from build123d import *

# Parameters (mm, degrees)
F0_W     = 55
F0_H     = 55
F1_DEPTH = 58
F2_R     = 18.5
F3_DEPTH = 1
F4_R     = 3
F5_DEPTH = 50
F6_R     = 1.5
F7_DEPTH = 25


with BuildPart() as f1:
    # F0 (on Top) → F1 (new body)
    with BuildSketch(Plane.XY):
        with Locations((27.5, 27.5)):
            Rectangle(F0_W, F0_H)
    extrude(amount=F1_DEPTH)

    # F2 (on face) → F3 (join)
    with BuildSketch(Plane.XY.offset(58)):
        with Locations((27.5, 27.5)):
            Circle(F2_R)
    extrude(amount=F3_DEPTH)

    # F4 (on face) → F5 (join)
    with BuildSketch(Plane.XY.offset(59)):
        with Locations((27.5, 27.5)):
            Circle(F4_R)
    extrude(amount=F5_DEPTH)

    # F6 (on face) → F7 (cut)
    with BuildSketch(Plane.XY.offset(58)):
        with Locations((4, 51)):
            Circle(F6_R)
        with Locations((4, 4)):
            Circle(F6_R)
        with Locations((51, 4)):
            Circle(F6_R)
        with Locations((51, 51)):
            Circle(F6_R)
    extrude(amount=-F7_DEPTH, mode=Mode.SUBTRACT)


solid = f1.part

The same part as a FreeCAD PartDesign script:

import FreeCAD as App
import Part
import Sketcher

V = App.Vector

doc = App.newDocument("Part")
body = doc.addObject("PartDesign::Body", "Body")

# Sketch on XY plane
sketch1 = body.newObject("Sketcher::SketchObject", "Sketch")
sketch1.AttachmentSupport = (doc.getObject("XY_Plane"), [""])
sketch1.MapMode = "FlatFace"
sketch1.addGeometry(Part.LineSegment(V(0, 55, 0), V(0, 0, 0)), False)
sketch1.addGeometry(Part.LineSegment(V(0, 0, 0), V(55, 0, 0)), False)
sketch1.addGeometry(Part.LineSegment(V(55, 0, 0), V(55, 55, 0)), False)
sketch1.addGeometry(Part.LineSegment(V(55, 55, 0), V(0, 55, 0)), False)
sketch1.addConstraint(Sketcher.Constraint("Coincident", 0, 2, 1, 1))
sketch1.addConstraint(Sketcher.Constraint("Coincident", 1, 2, 2, 1))
sketch1.addConstraint(Sketcher.Constraint("Coincident", 2, 2, 3, 1))
sketch1.addConstraint(Sketcher.Constraint("Coincident", 3, 2, 0, 1))
sketch1.addConstraint(Sketcher.Constraint("Vertical", 0))
sketch1.addConstraint(Sketcher.Constraint("Horizontal", 1))
sketch1.addConstraint(Sketcher.Constraint("Vertical", 2))
sketch1.addConstraint(Sketcher.Constraint("Horizontal", 3))
sketch1.addConstraint(Sketcher.Constraint("Coincident", 0, 2, -1, 1))
sketch1.addConstraint(Sketcher.Constraint("Equal", 3, 0))
sketch1.addConstraint(Sketcher.Constraint("DistanceX", 1, 1, 1, 2, 55.0))
pad1 = body.newObject("PartDesign::Pad", "Pad")
pad1.Profile = sketch1
pad1.Length = 58

# Sketch on XY plane
sketch2 = body.newObject("Sketcher::SketchObject", "Sketch001")
sketch2.AttachmentSupport = (doc.getObject("XY_Plane"), [""])
sketch2.MapMode = "FlatFace"
sketch2.AttachmentOffset = App.Placement(V(0, 0, 58), App.Rotation())
sketch2.addGeometry(Part.Circle(V(28, 28, 0), V(0, 0, 1), 18), False)
sketch2.addConstraint(Sketcher.Constraint("Diameter", 0, 37.0))
sketch2.addConstraint(Sketcher.Constraint("DistanceX", -1, 1, 0, 3, 27.5))
sketch2.addConstraint(Sketcher.Constraint("DistanceY", -1, 1, 0, 3, 27.5))
pad2 = body.newObject("PartDesign::Pad", "Pad001")
pad2.Profile = sketch2
pad2.Length = 1

# Sketch on XY plane
sketch3 = body.newObject("Sketcher::SketchObject", "Sketch002")
sketch3.AttachmentSupport = (doc.getObject("XY_Plane"), [""])
sketch3.MapMode = "FlatFace"
sketch3.AttachmentOffset = App.Placement(V(0, 0, 59), App.Rotation())
sketch3.addGeometry(Part.Circle(V(27.5, 27.5, 0), V(0, 0, 1), 3), False)
sketch3.addConstraint(Sketcher.Constraint("Diameter", 0, 6.0))
sketch3.addConstraint(Sketcher.Constraint("DistanceX", -1, 1, 0, 3, 27.5))
sketch3.addConstraint(Sketcher.Constraint("DistanceY", -1, 1, 0, 3, 27.5))
pad3 = body.newObject("PartDesign::Pad", "Pad002")
pad3.Profile = sketch3
pad3.Length = 50

# Sketch on XY plane
sketch4 = body.newObject("Sketcher::SketchObject", "Sketch003")
sketch4.AttachmentSupport = (doc.getObject("XY_Plane"), [""])
sketch4.MapMode = "FlatFace"
sketch4.AttachmentOffset = App.Placement(V(0, 0, 58), App.Rotation())
sketch4.addGeometry(Part.Circle(V(4, 51, 0), V(0, 0, 1), 1.5), False)
sketch4.addGeometry(Part.Circle(V(4, 4, 0), V(0, 0, 1), 1.5), False)
sketch4.addGeometry(Part.Circle(V(51, 4, 0), V(0, 0, 1), 1.5), False)
sketch4.addGeometry(Part.Circle(V(51, 51, 0), V(0, 0, 1), 1.5), False)
sketch4.addConstraint(Sketcher.Constraint("Equal", 0, 1))
sketch4.addConstraint(Sketcher.Constraint("Equal", 1, 2))
sketch4.addConstraint(Sketcher.Constraint("Equal", 2, 3))
sketch4.addConstraint(Sketcher.Constraint("Horizontal", 1, 3, 2, 3))
sketch4.addConstraint(Sketcher.Constraint("Horizontal", 0, 3, 3, 3))
sketch4.addConstraint(Sketcher.Constraint("Vertical", 0, 3, 1, 3))
sketch4.addConstraint(Sketcher.Constraint("Vertical", 2, 3, 3, 3))
sketch4.addConstraint(Sketcher.Constraint("Diameter", 0, 3.0))
sketch4.addConstraint(Sketcher.Constraint("DistanceX", -1, 1, 0, 3, 4.0))
sketch4.addConstraint(Sketcher.Constraint("DistanceY", -1, 1, 0, 3, 51.0))
sketch4.addConstraint(Sketcher.Constraint("DistanceY", -1, 1, 1, 3, 4.0))
sketch4.addConstraint(Sketcher.Constraint("DistanceX", -1, 1, 2, 3, 51.0))
pocket1 = body.newObject("PartDesign::Pocket", "Pocket")
pocket1.Profile = sketch4
pocket1.Length = 25

doc.recompute()
